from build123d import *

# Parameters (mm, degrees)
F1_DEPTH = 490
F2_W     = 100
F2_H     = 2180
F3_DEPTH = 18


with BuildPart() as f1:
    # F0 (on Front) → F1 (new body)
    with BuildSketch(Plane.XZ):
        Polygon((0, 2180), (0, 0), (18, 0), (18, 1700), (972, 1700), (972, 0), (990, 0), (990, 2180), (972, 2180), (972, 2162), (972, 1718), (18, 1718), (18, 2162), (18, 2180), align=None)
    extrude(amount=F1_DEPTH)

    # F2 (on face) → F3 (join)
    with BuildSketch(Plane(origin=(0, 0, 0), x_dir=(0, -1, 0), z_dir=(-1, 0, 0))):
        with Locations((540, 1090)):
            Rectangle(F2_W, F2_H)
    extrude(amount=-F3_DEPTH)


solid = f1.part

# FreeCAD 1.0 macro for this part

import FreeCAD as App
import Part
import Sketcher
Q = App.Units.Quantity


def add_polygon(sketch, points):
    """Adds a closed chain of lines whose ends are joined by coincident constraints."""
    first, n = sketch.GeometryCount, len(points)
    for a, b in zip(points, points[1:] + points[:1]):
        sketch.addGeometry(Part.LineSegment(App.Vector(*a, 0), App.Vector(*b, 0)), False)
    for i in range(n):
        sketch.addConstraint(Sketcher.Constraint("Coincident", first + i, 2, first + (i + 1) % n, 1))

doc = App.newDocument("Part")
body = doc.addObject("PartDesign::Body", "Body")

sketch1 = body.newObject("Sketcher::SketchObject", "Sketch")
sketch1.AttachmentSupport = (doc.getObject("XZ_Plane"), [""])
sketch1.MapMode = "FlatFace"
add_polygon(sketch1, [(0, 2180), (0, 0), (18, 0), (18, 1700), (972, 1700), (972, 0), (990, 0), (990, 2180), (972, 2180), (972, 1718), (18, 1718), (18, 2180)])
sketch1.addConstraint([
    Sketcher.Constraint("Vertical", 0),
    Sketcher.Constraint("Horizontal", 1),
    Sketcher.Constraint("Vertical", 2),
    Sketcher.Constraint("Horizontal", 3),
    Sketcher.Constraint("Vertical", 4),
    Sketcher.Constraint("Horizontal", 5),
    Sketcher.Constraint("Vertical", 6),
    Sketcher.Constraint("Horizontal", 7),
    Sketcher.Constraint("Vertical", 8),
    Sketcher.Constraint("Horizontal", 9),
    Sketcher.Constraint("Vertical", 10),
    Sketcher.Constraint("Horizontal", 11),
    Sketcher.Constraint("Coincident", 0, 2, -1, 1),
    Sketcher.Constraint("PointOnObject", 4, 2, -1),
    Sketcher.Constraint("Horizontal", 7, 2, 10, 2),
    Sketcher.Constraint("Vertical", 4, 2, 7, 2),
    Sketcher.Constraint("Vertical", 2, 2, 9, 2),
    Sketcher.Constraint("Equal", 1, 5),
    Sketcher.Constraint("DistanceX", 1, 1, 1, 2, Q("18 mm")),
    Sketcher.Constraint("DistanceX", 3, 1, 3, 2, Q("954 mm")),
    Sketcher.Constraint("DistanceY", 0, 2, 0, 1, Q("2180 mm")),
    Sketcher.Constraint("DistanceY", 2, 1, 2, 2, Q("1700 mm")),
    Sketcher.Constraint("DistanceY", 8, 2, 8, 1, Q("462 mm")),
])
pad1 = body.newObject("PartDesign::Pad", "Pad")
pad1.Profile = sketch1
pad1.Length = 490

sketch2 = body.newObject("Sketcher::SketchObject", "Sketch001")
sketch2.AttachmentSupport = (doc.getObject("YZ_Plane"), [""])
sketch2.MapMode = "FlatFace"
add_polygon(sketch2, [(-490, 2180), (-490, 0), (-590, 0), (-590, 2180)])
sketch2.addConstraint([
    Sketcher.Constraint("Vertical", 0),
    Sketcher.Constraint("Horizontal", 1),
    Sketcher.Constraint("Vertical", 2),
    Sketcher.Constraint("Horizontal", 3),
    Sketcher.Constraint("PointOnObject", 0, 2, -1),
    Sketcher.Constraint("DistanceX", 1, 2, 1, 1, Q("100 mm")),
    Sketcher.Constraint("DistanceY", 0, 2, 0, 1, Q("2180 mm")),
    Sketcher.Constraint("DistanceX", 0, 2, -1, 1, Q("490 mm")),
])
pad2 = body.newObject("PartDesign::Pad", "Pad001")
pad2.Profile = sketch2
pad2.Length = 18

doc.recompute()
